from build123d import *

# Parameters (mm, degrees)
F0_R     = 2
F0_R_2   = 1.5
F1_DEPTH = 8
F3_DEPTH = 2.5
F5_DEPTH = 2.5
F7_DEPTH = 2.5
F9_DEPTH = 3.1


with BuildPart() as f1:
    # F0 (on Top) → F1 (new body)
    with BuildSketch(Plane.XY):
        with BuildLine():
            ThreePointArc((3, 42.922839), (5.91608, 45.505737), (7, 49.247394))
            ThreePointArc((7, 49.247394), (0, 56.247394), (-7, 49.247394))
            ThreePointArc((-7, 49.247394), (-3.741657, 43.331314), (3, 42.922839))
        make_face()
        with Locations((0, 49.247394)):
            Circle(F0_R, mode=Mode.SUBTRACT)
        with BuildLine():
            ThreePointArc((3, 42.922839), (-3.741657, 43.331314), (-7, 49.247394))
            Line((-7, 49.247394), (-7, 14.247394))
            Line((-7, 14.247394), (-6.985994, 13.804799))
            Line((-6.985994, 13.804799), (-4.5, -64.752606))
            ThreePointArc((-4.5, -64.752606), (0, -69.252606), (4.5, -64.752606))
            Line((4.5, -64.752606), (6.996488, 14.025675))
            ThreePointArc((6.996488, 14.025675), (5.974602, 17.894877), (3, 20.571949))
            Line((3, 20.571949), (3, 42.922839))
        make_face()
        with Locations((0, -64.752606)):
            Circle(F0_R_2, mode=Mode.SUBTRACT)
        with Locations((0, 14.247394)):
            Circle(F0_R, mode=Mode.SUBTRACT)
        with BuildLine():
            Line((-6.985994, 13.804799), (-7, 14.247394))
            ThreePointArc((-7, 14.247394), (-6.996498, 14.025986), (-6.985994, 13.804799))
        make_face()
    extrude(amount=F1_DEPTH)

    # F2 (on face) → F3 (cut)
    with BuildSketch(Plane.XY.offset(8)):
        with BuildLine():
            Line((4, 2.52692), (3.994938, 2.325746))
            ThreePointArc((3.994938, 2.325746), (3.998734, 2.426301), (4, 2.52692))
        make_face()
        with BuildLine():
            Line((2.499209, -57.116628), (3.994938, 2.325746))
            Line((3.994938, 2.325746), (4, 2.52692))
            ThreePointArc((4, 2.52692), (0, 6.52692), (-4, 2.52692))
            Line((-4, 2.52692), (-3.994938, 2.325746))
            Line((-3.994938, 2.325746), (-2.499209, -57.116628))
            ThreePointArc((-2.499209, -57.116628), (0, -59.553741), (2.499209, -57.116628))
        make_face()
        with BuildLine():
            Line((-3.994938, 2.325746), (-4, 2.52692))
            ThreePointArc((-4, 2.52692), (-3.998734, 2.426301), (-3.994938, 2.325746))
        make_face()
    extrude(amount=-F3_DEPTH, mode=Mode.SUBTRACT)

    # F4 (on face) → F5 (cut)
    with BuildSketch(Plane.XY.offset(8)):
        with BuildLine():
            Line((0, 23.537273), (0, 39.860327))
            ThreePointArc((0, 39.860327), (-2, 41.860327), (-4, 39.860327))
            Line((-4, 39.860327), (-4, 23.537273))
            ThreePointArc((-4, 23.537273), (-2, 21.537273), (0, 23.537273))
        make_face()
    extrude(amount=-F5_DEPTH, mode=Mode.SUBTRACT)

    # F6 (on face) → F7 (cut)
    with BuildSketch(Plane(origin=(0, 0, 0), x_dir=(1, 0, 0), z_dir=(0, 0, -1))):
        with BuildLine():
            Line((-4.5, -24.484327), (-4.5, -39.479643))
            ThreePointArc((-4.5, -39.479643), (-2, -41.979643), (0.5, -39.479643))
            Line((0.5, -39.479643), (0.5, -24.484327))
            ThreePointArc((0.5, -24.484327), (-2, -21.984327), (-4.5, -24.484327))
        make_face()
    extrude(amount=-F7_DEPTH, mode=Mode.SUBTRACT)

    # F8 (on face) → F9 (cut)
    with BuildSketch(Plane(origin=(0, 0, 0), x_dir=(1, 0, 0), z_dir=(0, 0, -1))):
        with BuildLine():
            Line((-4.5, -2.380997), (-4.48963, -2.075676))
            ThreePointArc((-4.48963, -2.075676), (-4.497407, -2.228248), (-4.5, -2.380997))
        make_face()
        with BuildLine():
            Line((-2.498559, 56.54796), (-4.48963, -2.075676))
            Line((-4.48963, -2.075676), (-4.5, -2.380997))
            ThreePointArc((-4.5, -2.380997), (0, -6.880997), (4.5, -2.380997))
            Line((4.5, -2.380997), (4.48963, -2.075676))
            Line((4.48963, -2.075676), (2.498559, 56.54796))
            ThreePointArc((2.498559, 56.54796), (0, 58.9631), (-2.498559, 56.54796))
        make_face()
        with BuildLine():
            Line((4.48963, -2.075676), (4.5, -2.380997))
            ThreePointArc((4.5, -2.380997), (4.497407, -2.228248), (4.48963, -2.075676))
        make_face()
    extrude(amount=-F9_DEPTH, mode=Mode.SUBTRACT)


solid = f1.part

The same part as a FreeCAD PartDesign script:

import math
import FreeCAD as App
import Part
import Sketcher
from FreeCAD import Vector
Q = App.Units.Quantity

doc = App.newDocument("Part")
body = doc.addObject("PartDesign::Body", "Body")

sketch1 = body.newObject("Sketcher::SketchObject", "Sketch")
sketch1.AttachmentSupport = (doc.getObject("XY_Plane"), [""])
sketch1.MapMode = "FlatFace"
sketch1.addGeometry(Part.ArcOfCircle(Part.Circle(Vector(0.000001, 49.247394, 0), Vector(0, 0, 1), 6.999999), math.radians(-64.623071), math.radians(0.000002)), False)
sketch1.addGeometry(Part.ArcOfCircle(Part.Circle(Vector(0, 49.247394, 0), Vector(0, 0, 1), 7), math.radians(0), math.radians(180)), False)
sketch1.addGeometry(Part.LineSegment(Vector(-7, 49.247394, 0), Vector(-7, 14.247394, 0)), False)
sketch1.addGeometry(Part.ArcOfCircle(Part.Circle(Vector(-0.000644, 14.247371, 0), Vector(0, 0, 1), 6.999356), math.radians(179.99981), math.radians(183.625251)), False)
sketch1.addGeometry(Part.LineSegment(Vector(-6.985994, 13.804799, 0), Vector(-4.5, -64.752606, 0)), False)
sketch1.addGeometry(Part.ArcOfCircle(Part.Circle(Vector(0, -64.752606, 0), Vector(0, 0, 1), 4.5), math.radians(180), math.radians(360)), False)
sketch1.addGeometry(Part.LineSegment(Vector(4.5, -64.752606, 0), Vector(6.996488, 14.025675, 0)), False)
sketch1.addGeometry(Part.ArcOfCircle(Part.Circle(Vector(0.000001, 14.247394, 0), Vector(0, 0, 1), 6.999999), math.radians(-1.815098), math.radians(64.623072)), False)
sketch1.addGeometry(Part.LineSegment(Vector(3, 20.571949, 0), Vector(3, 42.922839, 0)), False)
sketch1.addGeometry(Part.Circle(Vector(0, -64.752606, 0), Vector(0, 0, 1), 1.5), False)
sketch1.addGeometry(Part.Circle(Vector(0, 14.247394, 0), Vector(0, 0, 1), 2), False)
sketch1.addGeometry(Part.Circle(Vector(0, 49.247394, 0), Vector(0, 0, 1), 2), False)
sketch1.addConstraint(Sketcher.Constraint("Tangent", 0, 2, 1, 1))
sketch1.addConstraint(Sketcher.Constraint("Tangent", 1, 2, 2, 1))
sketch1.addConstraint(Sketcher.Constraint("Coincident", 2, 2, 3, 1))
sketch1.addConstraint(Sketcher.Constraint("Coincident", 3, 2, 4, 1))
sketch1.addConstraint(Sketcher.Constraint("Coincident", 4, 2, 5, 1))
sketch1.addConstraint(Sketcher.Constraint("Coincident", 5, 2, 6, 1))
sketch1.addConstraint(Sketcher.Constraint("Tangent", 6, 2, 7, 1))
sketch1.addConstraint(Sketcher.Constraint("Coincident", 7, 2, 8, 1))
sketch1.addConstraint(Sketcher.Constraint("Coincident", 8, 2, 0, 1))
sketch1.addConstraint(Sketcher.Constraint("Vertical", 2))
sketch1.addConstraint(Sketcher.Constraint("Vertical", 8))
sketch1.addConstraint(Sketcher.Constraint("Coincident", 9, 3, 5, 3))
sketch1.addConstraint(Sketcher.Constraint("Coincident", 10, 3, 7, 3))
sketch1.addConstraint(Sketcher.Constraint("Coincident", 11, 3, 0, 3))
sketch1.addConstraint(Sketcher.Constraint("Equal", 0, 1))
sketch1.addConstraint(Sketcher.Constraint("Equal", 1, 7))
sketch1.addConstraint(Sketcher.Constraint("Equal", 10, 11))
sketch1.addConstraint(Sketcher.Constraint("Symmetric", 0, 2, 1, 2, -2))
sketch1.addConstraint(Sketcher.Constraint("Symmetric", 4, 2, 5, 2, -2))
sketch1.addConstraint(Sketcher.Constraint("PointOnObject", 7, 3, -2))
sketch1.addConstraint(Sketcher.Constraint("Horizontal", 10, 3, 2, 2))
sketch1.addConstraint(Sketcher.Constraint("Horizontal", 9, 3, 4, 2))
sketch1.addConstraint(Sketcher.Constraint("Diameter", 9, Q("3 mm")))
sketch1.addConstraint(Sketcher.Constraint("Diameter", 10, Q("4 mm")))
sketch1.addConstraint(Sketcher.Constraint("Radius", 0, Q("6.999999 mm")))
sketch1.addConstraint(Sketcher.Constraint("Radius", 5, Q("4.5 mm")))
sketch1.addConstraint(Sketcher.Constraint("DistanceY", 2, 2, 2, 1, Q("35 mm")))
sketch1.addConstraint(Sketcher.Constraint("DistanceX", -1, 1, 7, 2, Q("3 mm")))
sketch1.addConstraint(Sketcher.Constraint("DistanceY", 5, 3, 0, 3, Q("114 mm")))
sketch1.addConstraint(Sketcher.Constraint("Radius", 3, Q("6.999356 mm")))
sketch1.addConstraint(Sketcher.Constraint("DistanceY", -1, 1, 3, 2, Q("13.804799 mm")))
sketch1.addConstraint(Sketcher.Constraint("Distance", 4, Q("78.596731 mm")))
sketch1.addConstraint(Sketcher.Constraint("DistanceY", -1, 1, 3, 3, Q("14.247371 mm")))
pad1 = body.newObject("PartDesign::Pad", "Pad")
pad1.Profile = sketch1
pad1.Length = 8

sketch2 = body.newObject("Sketcher::SketchObject", "Sketch001")
sketch2.AttachmentSupport = (doc.getObject("XY_Plane"), [""])
sketch2.MapMode = "FlatFace"
sketch2.AttachmentOffset = App.Placement(Vector(0, 0, 8), App.Rotation())
sketch2.addGeometry(Part.ArcOfCircle(Part.Circle(Vector(-0.000994, 2.526944, 0), Vector(0, 0, 1), 4.000994), math.radians(-2.882442), math.radians(-0.000337)), False)
sketch2.addGeometry(Part.ArcOfCircle(Part.Circle(Vector(0, 2.52692, 0), Vector(0, 0, 1), 4), math.radians(0), math.radians(180)), False)
sketch2.addGeometry(Part.ArcOfCircle(Part.Circle(Vector(0.000994, 2.526944, 0), Vector(0, 0, 1), 4.000994), math.radians(-179.999663), math.radians(-177.117558)), False)
sketch2.addGeometry(Part.LineSegment(Vector(-3.994938, 2.325746, 0), Vector(-2.499209, -57.116628, 0)), False)
sketch2.addGeometry(Part.ArcOfCircle(Part.Circle(Vector(0, -57.053741, 0), Vector(0, 0, 1), 2.5), math.radians(-178.558582), math.radians(-1.441418)), False)
sketch2.addGeometry(Part.LineSegment(Vector(2.499209, -57.116628, 0), Vector(3.994938, 2.325746, 0)), False)
sketch2.addConstraint(Sketcher.Constraint("Coincident", 0, 2, 1, 1))
sketch2.addConstraint(Sketcher.Constraint("Coincident", 1, 2, 2, 1))
sketch2.addConstraint(Sketcher.Constraint("Coincident", 2, 2, 3, 1))
sketch2.addConstraint(Sketcher.Constraint("Tangent", 3, 2, 4, 1))
sketch2.addConstraint(Sketcher.Constraint("Tangent", 4, 2, 5, 1))
sketch2.addConstraint(Sketcher.Constraint("Coincident", 5, 2, 0, 1))
sketch2.addConstraint(Sketcher.Constraint("Equal", 0, 2))
sketch2.addConstraint(Sketcher.Constraint("Symmetric", 0, 3, 2, 3, -2))
sketch2.addConstraint(Sketcher.Constraint("PointOnObject", 4, 3, -2))
sketch2.addConstraint(Sketcher.Constraint("Horizontal", 1, 3, 0, 2))
sketch2.addConstraint(Sketcher.Constraint("Horizontal", 0, 2, 1, 2))
sketch2.addConstraint(Sketcher.Constraint("Horizontal", 2, 2, 5, 2))
sketch2.addConstraint(Sketcher.Constraint("Radius", 1, Q("4 mm")))
sketch2.addConstraint(Sketcher.Constraint("Radius", 4, Q("2.5 mm")))
sketch2.addConstraint(Sketcher.Constraint("Radius", 0, Q("4.000994 mm")))
sketch2.addConstraint(Sketcher.Constraint("Distance", 3, Q("59.461189 mm")))
sketch2.addConstraint(Sketcher.Constraint("DistanceY", -1, 1, 1, 3, Q("2.52692 mm")))
sketch2.addConstraint(Sketcher.Constraint("DistanceY", 4, 3, -1, 1, Q("57.053741 mm")))
sketch2.addConstraint(Sketcher.Constraint("DistanceX", 2, 2, 2, 3, Q("3.995932 mm")))
pocket1 = body.newObject("PartDesign::Pocket", "Pocket")
pocket1.Profile = sketch2
pocket1.Length = 2.5

sketch3 = body.newObject("Sketcher::SketchObject", "Sketch002")
sketch3.AttachmentSupport = (doc.getObject("XY_Plane"), [""])
sketch3.MapMode = "FlatFace"
sketch3.AttachmentOffset = App.Placement(Vector(0, 0, 8), App.Rotation())
sketch3.addGeometry(Part.LineSegment(Vector(0, 23.537273, 0), Vector(0, 39.860327, 0)), False)
sketch3.addGeometry(Part.ArcOfCircle(Part.Circle(Vector(-2, 39.860327, 0), Vector(0, 0, 1), 2), math.radians(0), math.radians(180)), False)
sketch3.addGeometry(Part.LineSegment(Vector(-4, 39.860327, 0), Vector(-4, 23.537273, 0)), False)
sketch3.addGeometry(Part.ArcOfCircle(Part.Circle(Vector(-2, 23.537273, 0), Vector(0, 0, 1), 2), math.radians(180), math.radians(360)), False)
sketch3.addConstraint(Sketcher.Constraint("Tangent", 0, 2, 1, 1))
sketch3.addConstraint(Sketcher.Constraint("Tangent", 1, 2, 2, 1))
sketch3.addConstraint(Sketcher.Constraint("Tangent", 2, 2, 3, 1))
sketch3.addConstraint(Sketcher.Constraint("Tangent", 3, 2, 0, 1))
sketch3.addConstraint(Sketcher.Constraint("Vertical", 0))
sketch3.addConstraint(Sketcher.Constraint("Vertical", 2))
sketch3.addConstraint(Sketcher.Constraint("PointOnObject", 0, 2, -2))
sketch3.addConstraint(Sketcher.Constraint("Radius", 1, Q("2 mm")))
sketch3.addConstraint(Sketcher.Constraint("DistanceY", 0, 1, 0, 2, Q("16.323054 mm")))
sketch3.addConstraint(Sketcher.Constraint("DistanceY", -1, 1, 1, 3, Q("39.860327 mm")))
pocket2 = body.newObject("PartDesign::Pocket", "Pocket001")
pocket2.Profile = sketch3
pocket2.Length = 2.5

sketch4 = body.newObject("Sketcher::SketchObject", "Sketch003")
sketch4.AttachmentSupport = (doc.getObject("XY_Plane"), [""])
sketch4.MapMode = "FlatFace"
sketch4.addGeometry(Part.LineSegment(Vector(-4.5, 24.484327, 0), Vector(-4.5, 39.479643, 0)), False)
sketch4.addGeometry(Part.ArcOfCircle(Part.Circle(Vector(-2, 39.479643, 0), Vector(0, 0, 1), 2.5), math.radians(0), math.radians(180)), False)
sketch4.addGeometry(Part.LineSegment(Vector(0.5, 39.479643, 0), Vector(0.5, 24.484327, 0)), False)
sketch4.addGeometry(Part.ArcOfCircle(Part.Circle(Vector(-2, 24.484327, 0), Vector(0, 0, 1), 2.5), math.radians(180), math.radians(360)), False)
sketch4.addConstraint(Sketcher.Constraint("Tangent", 0, 2, 1, 2))
sketch4.addConstraint(Sketcher.Constraint("Tangent", 1, 1, 2, 1))
sketch4.addConstraint(Sketcher.Constraint("Tangent", 2, 2, 3, 2))
sketch4.addConstraint(Sketcher.Constraint("Tangent", 3, 1, 0, 1))
sketch4.addConstraint(Sketcher.Constraint("Vertical", 0))
sketch4.addConstraint(Sketcher.Constraint("Vertical", 2))
sketch4.addConstraint(Sketcher.Constraint("Radius", 1, Q("2.5 mm")))
sketch4.addConstraint(Sketcher.Constraint("DistanceX", 1, 3, -1, 1, Q("2 mm")))
sketch4.addConstraint(Sketcher.Constraint("DistanceY", 0, 1, 0, 2, Q("14.995316 mm")))
sketch4.addConstraint(Sketcher.Constraint("DistanceY", -1, 1, 1, 3, Q("39.479643 mm")))
pocket3 = body.newObject("PartDesign::Pocket", "Pocket002")
pocket3.Profile = sketch4
pocket3.Length = 2.5
pocket3.Reversed = True

sketch5 = body.newObject("Sketcher::SketchObject", "Sketch004")
sketch5.AttachmentSupport = (doc.getObject("XY_Plane"), [""])
sketch5.MapMode = "FlatFace"
sketch5.addGeometry(Part.ArcOfCircle(Part.Circle(Vector(-0.000531, 2.380982, 0), Vector(0, 0, 1), 4.499469), math.radians(179.999803), math.radians(183.890719)), False)
sketch5.addGeometry(Part.ArcOfCircle(Part.Circle(Vector(0, 2.380997, 0), Vector(0, 0, 1), 4.5), math.radians(0), math.radians(180)), False)
sketch5.addGeometry(Part.ArcOfCircle(Part.Circle(Vector(0.000531, 2.380982, 0), Vector(0, 0, 1), 4.499469), math.radians(-3.890719), math.radians(0.000197)), False)
sketch5.addGeometry(Part.LineSegment(Vector(4.48963, 2.075676, 0), Vector(2.498559, -56.54796, 0)), False)
sketch5.addGeometry(Part.ArcOfCircle(Part.Circle(Vector(0, -56.4631, 0), Vector(0, 0, 1), 2.5), math.radians(-178.054786), math.radians(-1.945214)), False)
sketch5.addGeometry(Part.LineSegment(Vector(-2.498559, -56.54796, 0), Vector(-4.48963, 2.075676, 0)), False)
sketch5.addConstraint(Sketcher.Constraint("Coincident", 0, 1, 1, 2))
sketch5.addConstraint(Sketcher.Constraint("Coincident", 1, 1, 2, 2))
sketch5.addConstraint(Sketcher.Constraint("Coincident", 2, 1, 3, 1))
sketch5.addConstraint(Sketcher.Constraint("Tangent", 3, 2, 4, 2))
sketch5.addConstraint(Sketcher.Constraint("Tangent", 4, 1, 5, 1))
sketch5.addConstraint(Sketcher.Constraint("Coincident", 5, 2, 0, 2))
sketch5.addConstraint(Sketcher.Constraint("Equal", 0, 2))
sketch5.addConstraint(Sketcher.Constraint("Symmetric", 0, 3, 2, 3, -2))
sketch5.addConstraint(Sketcher.Constraint("PointOnObject", 4, 3, -2))
sketch5.addConstraint(Sketcher.Constraint("Horizontal", 1, 3, 0, 1))
sketch5.addConstraint(Sketcher.Constraint("Horizontal", 0, 1, 1, 1))
sketch5.addConstraint(Sketcher.Constraint("Horizontal", 2, 1, 5, 2))
sketch5.addConstraint(Sketcher.Constraint("Radius", 1, Q("4.5 mm")))
sketch5.addConstraint(Sketcher.Constraint("Radius", 4, Q("2.5 mm")))
sketch5.addConstraint(Sketcher.Constraint("Radius", 0, Q("4.499469 mm")))
sketch5.addConstraint(Sketcher.Constraint("DistanceY", 4, 3, -1, 1, Q("56.4631 mm")))
sketch5.addConstraint(Sketcher.Constraint("DistanceX", 2, 3, 2, 1, Q("4.489099 mm")))
sketch5.addConstraint(Sketcher.Constraint("Distance", 3, Q("58.657438 mm")))
sketch5.addConstraint(Sketcher.Constraint("DistanceY", 2, 1, 1, 1, Q("0.305321 mm")))
pocket4 = body.newObject("PartDesign::Pocket", "Pocket003")
pocket4.Profile = sketch5
pocket4.Length = 3.1
pocket4.Reversed = True

doc.recompute()
